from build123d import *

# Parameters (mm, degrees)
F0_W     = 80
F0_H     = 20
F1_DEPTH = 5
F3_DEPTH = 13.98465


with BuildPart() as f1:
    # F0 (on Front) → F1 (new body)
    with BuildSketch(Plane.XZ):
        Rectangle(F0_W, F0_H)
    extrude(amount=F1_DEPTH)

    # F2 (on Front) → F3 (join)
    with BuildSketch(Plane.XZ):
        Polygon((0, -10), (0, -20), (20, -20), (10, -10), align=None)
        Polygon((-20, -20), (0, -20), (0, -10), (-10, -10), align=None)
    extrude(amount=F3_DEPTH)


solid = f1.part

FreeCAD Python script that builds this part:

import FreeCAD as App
import Part
import Sketcher


def add_polygon(sketch, points):
    """Adds a closed chain of lines whose ends are joined by coincident constraints."""
    first, n = sketch.GeometryCount, len(points)
    for a, b in zip(points, points[1:] + points[:1]):
        sketch.addGeometry(Part.LineSegment(App.Vector(*a, 0), App.Vector(*b, 0)), False)
    for i in range(n):
        sketch.addConstraint(Sketcher.Constraint("Coincident", first + i, 2, first + (i + 1) % n, 1))

doc = App.newDocument("Part")
params = doc.addObject("Spreadsheet::Sheet", "Params")
for row, (alias, value) in enumerate([
    ("sketch1_width", "80 mm"),
    ("sketch1_height", "20 mm"),
    ("pad1_length", "5 mm"),
    ("sketch2_width", "20 mm"),
    ("sketch2_width2", "40 mm"),
    ("pad2_length", "13.98465 mm"),
], start=1):
    params.set(f"A{row}", alias)
    params.set(f"B{row}", "=" + value)
    params.setAlias(f"B{row}", alias)

body = doc.addObject("PartDesign::Body", "Body")

# Sketch on XZ plane
sketch1 = doc.addObject("Sketcher::SketchObject", "Sketch")
body.addObject(sketch1)
sketch1.AttachmentSupport = (doc.XZ_Plane, [""])
sketch1.MapMode = "FlatFace"
add_polygon(sketch1, [(-40, 10), (-40, -10), (40, -10), (40, 10)])  # lines 0-3
sketch1.addConstraint([
    Sketcher.Constraint("Vertical", 0),
    Sketcher.Constraint("Horizontal", 1),
    Sketcher.Constraint("Vertical", 2),
    Sketcher.Constraint("Horizontal", 3),
    Sketcher.Constraint("Symmetric", 0, 2, 2, 2, -1, 1),
    Sketcher.Constraint("DistanceX", 1, 1, 1, 2, 80.0),
    Sketcher.Constraint("DistanceY", 0, 2, 0, 1, 20.0),
])
sketch1.setExpression("Constraints[9]", "Params.sketch1_width")
sketch1.setExpression("Constraints[10]", "Params.sketch1_height")
pad1 = doc.addObject("PartDesign::Pad", "Pad")
body.addObject(pad1)
pad1.Profile = sketch1
pad1.setExpression("Length", "Params.pad1_length")

# Sketch on XZ plane
sketch2 = doc.addObject("Sketcher::SketchObject", "Sketch001")
body.addObject(sketch2)
sketch2.AttachmentSupport = (doc.XZ_Plane, [""])
sketch2.MapMode = "FlatFace"
add_polygon(sketch2, [(20, -20), (10, -10), (-10, -10), (-20, -20)])  # lines 0-3
sketch2.addConstraint([
    Sketcher.Constraint("Horizontal", 1),
    Sketcher.Constraint("Horizontal", 3),
    Sketcher.Constraint("Perpendicular", 0, 2),
    Sketcher.Constraint("Equal", 0, 2),
    Sketcher.Constraint("DistanceX", 1, 2, 1, 1, 20.0),
    Sketcher.Constraint("DistanceX", 3, 1, 3, 2, 40.0),
    Sketcher.Constraint("DistanceX", -1, 1, 0, 2, 10.0),
    Sketcher.Constraint("DistanceY", 0, 2, -1, 1, 10.0),
])
sketch2.setExpression("Constraints[8]", "Params.sketch2_width")
sketch2.setExpression("Constraints[9]", "Params.sketch2_width2")
pad2 = doc.addObject("PartDesign::Pad", "Pad001")
body.addObject(pad2)
pad2.Profile = sketch2
pad2.setExpression("Length", "Params.pad2_length")

doc.recompute()
